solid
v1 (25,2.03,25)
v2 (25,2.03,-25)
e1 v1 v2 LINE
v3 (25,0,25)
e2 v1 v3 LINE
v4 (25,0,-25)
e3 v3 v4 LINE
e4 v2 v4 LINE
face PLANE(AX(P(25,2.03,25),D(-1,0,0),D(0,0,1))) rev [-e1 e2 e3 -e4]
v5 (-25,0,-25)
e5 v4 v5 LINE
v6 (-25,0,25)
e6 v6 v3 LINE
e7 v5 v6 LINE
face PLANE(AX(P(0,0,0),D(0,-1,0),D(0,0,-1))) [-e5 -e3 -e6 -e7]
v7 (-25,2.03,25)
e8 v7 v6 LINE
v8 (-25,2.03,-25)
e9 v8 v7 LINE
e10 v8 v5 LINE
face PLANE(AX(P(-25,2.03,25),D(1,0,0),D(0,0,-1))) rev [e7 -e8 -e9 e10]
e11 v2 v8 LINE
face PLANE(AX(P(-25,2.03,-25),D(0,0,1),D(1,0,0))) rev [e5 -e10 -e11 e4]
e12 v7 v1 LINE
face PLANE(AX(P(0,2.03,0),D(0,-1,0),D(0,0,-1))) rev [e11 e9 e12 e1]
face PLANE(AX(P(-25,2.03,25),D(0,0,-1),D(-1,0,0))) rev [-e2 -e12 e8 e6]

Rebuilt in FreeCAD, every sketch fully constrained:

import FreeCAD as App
import Part
import Sketcher

V = App.Vector


def add_polygon(sketch, points):
    """Adds a closed chain of lines whose ends are joined by coincident constraints."""
    first, n = sketch.GeometryCount, len(points)
    for a, b in zip(points, points[1:] + points[:1]):
        sketch.addGeometry(Part.LineSegment(App.Vector(*a, 0), App.Vector(*b, 0)), False)
    for i in range(n):
        sketch.addConstraint(Sketcher.Constraint("Coincident", first + i, 2, first + (i + 1) % n, 1))

doc = App.newDocument("Part")
body = doc.addObject("PartDesign::Body", "Body")

# Sketch on XZ plane
sketch1 = body.newObject("Sketcher::SketchObject", "Sketch")
sketch1.AttachmentSupport = (doc.getObject("XZ_Plane"), [""])
sketch1.MapMode = "FlatFace"
add_polygon(sketch1, [(-25, -25), (-25, 25), (25, 25), (25, -25)])  # lines 0-3
sketch1.addConstraint([
    Sketcher.Constraint("Vertical", 0),
    Sketcher.Constraint("Horizontal", 1),
    Sketcher.Constraint("Vertical", 2),
    Sketcher.Constraint("Horizontal", 3),
    Sketcher.Constraint("Symmetric", 0, 2, 2, 2, -1, 1),
    Sketcher.Constraint("Equal", 3, 0),
    Sketcher.Constraint("DistanceX", 1, 1, 1, 2, 50.0),
])
pad1 = body.newObject("PartDesign::Pad", "Pad")
pad1.Profile = sketch1
pad1.Length = 2.03
pad1.Reversed = True

doc.recompute()
